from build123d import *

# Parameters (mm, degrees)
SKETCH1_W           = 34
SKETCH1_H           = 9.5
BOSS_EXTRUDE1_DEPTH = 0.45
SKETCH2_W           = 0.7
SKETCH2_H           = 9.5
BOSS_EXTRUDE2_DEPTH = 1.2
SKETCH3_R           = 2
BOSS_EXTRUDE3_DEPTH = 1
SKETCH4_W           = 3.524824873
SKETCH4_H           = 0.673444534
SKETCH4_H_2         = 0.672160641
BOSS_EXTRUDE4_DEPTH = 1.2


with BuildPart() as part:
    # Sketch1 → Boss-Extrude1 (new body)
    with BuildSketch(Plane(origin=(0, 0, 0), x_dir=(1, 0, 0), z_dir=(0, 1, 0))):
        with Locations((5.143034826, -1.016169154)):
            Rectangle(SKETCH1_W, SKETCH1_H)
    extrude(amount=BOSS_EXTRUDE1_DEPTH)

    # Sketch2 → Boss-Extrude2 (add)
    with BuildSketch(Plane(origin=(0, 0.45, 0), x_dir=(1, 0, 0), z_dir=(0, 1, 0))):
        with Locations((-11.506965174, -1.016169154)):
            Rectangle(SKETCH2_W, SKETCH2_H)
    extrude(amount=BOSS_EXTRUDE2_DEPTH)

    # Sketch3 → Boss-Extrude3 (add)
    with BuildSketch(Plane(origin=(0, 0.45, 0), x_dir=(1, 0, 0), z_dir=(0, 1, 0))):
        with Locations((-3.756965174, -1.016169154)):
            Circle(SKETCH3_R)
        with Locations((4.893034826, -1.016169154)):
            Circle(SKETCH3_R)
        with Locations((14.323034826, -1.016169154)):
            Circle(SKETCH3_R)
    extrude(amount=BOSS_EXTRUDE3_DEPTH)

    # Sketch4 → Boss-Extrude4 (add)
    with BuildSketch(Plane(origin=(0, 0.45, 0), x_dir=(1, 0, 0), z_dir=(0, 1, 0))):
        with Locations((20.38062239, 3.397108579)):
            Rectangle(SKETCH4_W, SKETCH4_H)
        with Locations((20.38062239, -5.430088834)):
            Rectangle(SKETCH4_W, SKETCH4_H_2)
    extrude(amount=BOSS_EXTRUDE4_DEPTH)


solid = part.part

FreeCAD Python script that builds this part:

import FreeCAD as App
import Part
import Sketcher

V = App.Vector
Q = App.Units.Quantity


def add_polygon(sketch, points):
    """Adds a closed chain of lines whose ends are joined by coincident constraints."""
    first, n = sketch.GeometryCount, len(points)
    for a, b in zip(points, points[1:] + points[:1]):
        sketch.addGeometry(Part.LineSegment(App.Vector(*a, 0), App.Vector(*b, 0)), False)
    for i in range(n):
        sketch.addConstraint(Sketcher.Constraint("Coincident", first + i, 2, first + (i + 1) % n, 1))

doc = App.newDocument("Part")
body = doc.addObject("PartDesign::Body", "Body")

# Sketch on XZ plane
sketch1 = body.newObject("Sketcher::SketchObject", "Sketch")
sketch1.AttachmentSupport = (doc.getObject("XZ_Plane"), [""])
sketch1.MapMode = "FlatFace"
add_polygon(sketch1, [(-12, -4), (-12, 6), (22, 6), (22, -4)])  # lines 0-3
sketch1.addConstraint([
    Sketcher.Constraint("Vertical", 0),
    Sketcher.Constraint("Horizontal", 1),
    Sketcher.Constraint("Vertical", 2),
    Sketcher.Constraint("Horizontal", 3),
    Sketcher.Constraint("DistanceX", 1, 1, 1, 2, Q("34 mm")),
    Sketcher.Constraint("DistanceY", 0, 1, 0, 2, Q("9.5 mm")),
    Sketcher.Constraint("DistanceY", -1, 1, 0, 2, Q("5.766169 mm")),
    Sketcher.Constraint("DistanceX", 0, 2, -1, 1, Q("11.856965 mm")),
])
pad1 = body.newObject("PartDesign::Pad", "Pad")
pad1.Profile = sketch1
pad1.Length = 0.45
pad1.Reversed = True

# Sketch on XZ plane
sketch2 = body.newObject("Sketcher::SketchObject", "Sketch001")
sketch2.AttachmentSupport = (doc.getObject("XZ_Plane"), [""])
sketch2.MapMode = "FlatFace"
sketch2.AttachmentOffset = App.Placement(V(0, 0, -0.45), App.Rotation())
add_polygon(sketch2, [(-11.9, -3.7), (-11.9, 5.8), (-11.2, 5.8), (-11.2, -3.7)])  # lines 0-3
sketch2.addConstraint([
    Sketcher.Constraint("Vertical", 0),
    Sketcher.Constraint("Horizontal", 1),
    Sketcher.Constraint("Vertical", 2),
    Sketcher.Constraint("Horizontal", 3),
    Sketcher.Constraint("DistanceX", 1, 1, 1, 2, Q("0.7 mm")),
    Sketcher.Constraint("DistanceY", 0, 1, 0, 2, Q("9.5 mm")),
    Sketcher.Constraint("DistanceY", -1, 1, 0, 2, Q("5.766169 mm")),
    Sketcher.Constraint("DistanceX", 0, 2, -1, 1, Q("11.856965 mm")),
])
pad2 = body.newObject("PartDesign::Pad", "Pad001")
pad2.Profile = sketch2
pad2.Length = 1.2
pad2.Reversed = True

# Sketch on XZ plane
sketch3 = body.newObject("Sketcher::SketchObject", "Sketch002")
sketch3.AttachmentSupport = (doc.getObject("XZ_Plane"), [""])
sketch3.MapMode = "FlatFace"
sketch3.AttachmentOffset = App.Placement(V(0, 0, -0.45), App.Rotation())
sketch3.addGeometry([
    Part.Circle(V(-3.8, 1, 0), V(0, 0, 1), 2),
    Part.Circle(V(4.9, 1, 0), V(0, 0, 1), 2),
    Part.Circle(V(14.3, 1, 0), V(0, 0, 1), 2),
], False)
sketch3.addConstraint([
    Sketcher.Constraint("Equal", 0, 1),
    Sketcher.Constraint("Equal", 1, 2),
    Sketcher.Constraint("Horizontal", 0, 3, 1, 3),
    Sketcher.Constraint("Horizontal", 1, 3, 2, 3),
    Sketcher.Constraint("Diameter", 0, Q("4 mm")),
    Sketcher.Constraint("DistanceX", 0, 3, 1, 3, Q("8.65 mm")),
    Sketcher.Constraint("DistanceX", 1, 3, 2, 3, Q("9.43 mm")),
    Sketcher.Constraint("DistanceY", -1, 1, 0, 3, Q("1.016169 mm")),
    Sketcher.Constraint("DistanceX", 0, 3, -1, 1, Q("3.756965 mm")),
])
pad3 = body.newObject("PartDesign::Pad", "Pad002")
pad3.Profile = sketch3
pad3.Length = 1
pad3.Reversed = True

# Sketch on XZ plane
sketch4 = body.newObject("Sketcher::SketchObject", "Sketch003")
sketch4.AttachmentSupport = (doc.getObject("XZ_Plane"), [""])
sketch4.MapMode = "FlatFace"
sketch4.AttachmentOffset = App.Placement(V(0, 0, -0.45), App.Rotation())
add_polygon(sketch4, [(18.6, -3.7), (18.6, -3.1), (22.1, -3.1), (22.1, -3.7)])  # lines 0-3
add_polygon(sketch4, [(18.6, 5.1), (18.6, 5.8), (22.1, 5.8), (22.1, 5.1)])  # lines 4-7
sketch4.addConstraint([
    Sketcher.Constraint("Vertical", 0),
    Sketcher.Constraint("Horizontal", 1),
    Sketcher.Constraint("Vertical", 2),
    Sketcher.Constraint("Horizontal", 3),
    Sketcher.Constraint("Vertical", 4),
    Sketcher.Constraint("Horizontal", 5),
    Sketcher.Constraint("Vertical", 6),
    Sketcher.Constraint("Horizontal", 7),
    Sketcher.Constraint("Vertical", 3, 2, 4, 2),
    Sketcher.Constraint("Vertical", 2, 2, 5, 2),
    Sketcher.Constraint("DistanceY", 3, 2, 4, 2, Q("9.5 mm")),
    Sketcher.Constraint("DistanceY", 4, 1, 4, 2, Q("0.672161 mm")),
    Sketcher.Constraint("DistanceX", 1, 1, 1, 2, Q("3.524825 mm")),
    Sketcher.Constraint("DistanceY", 0, 1, 0, 2, Q("0.673445 mm")),
    Sketcher.Constraint("DistanceX", -1, 1, 0, 2, Q("18.61821 mm")),
    Sketcher.Constraint("DistanceY", 2, 2, -1, 1, Q("3.733831 mm")),
])
pad4 = body.newObject("PartDesign::Pad", "Pad003")
pad4.Profile = sketch4
pad4.Length = 1.2
pad4.Reversed = True

doc.recompute()
